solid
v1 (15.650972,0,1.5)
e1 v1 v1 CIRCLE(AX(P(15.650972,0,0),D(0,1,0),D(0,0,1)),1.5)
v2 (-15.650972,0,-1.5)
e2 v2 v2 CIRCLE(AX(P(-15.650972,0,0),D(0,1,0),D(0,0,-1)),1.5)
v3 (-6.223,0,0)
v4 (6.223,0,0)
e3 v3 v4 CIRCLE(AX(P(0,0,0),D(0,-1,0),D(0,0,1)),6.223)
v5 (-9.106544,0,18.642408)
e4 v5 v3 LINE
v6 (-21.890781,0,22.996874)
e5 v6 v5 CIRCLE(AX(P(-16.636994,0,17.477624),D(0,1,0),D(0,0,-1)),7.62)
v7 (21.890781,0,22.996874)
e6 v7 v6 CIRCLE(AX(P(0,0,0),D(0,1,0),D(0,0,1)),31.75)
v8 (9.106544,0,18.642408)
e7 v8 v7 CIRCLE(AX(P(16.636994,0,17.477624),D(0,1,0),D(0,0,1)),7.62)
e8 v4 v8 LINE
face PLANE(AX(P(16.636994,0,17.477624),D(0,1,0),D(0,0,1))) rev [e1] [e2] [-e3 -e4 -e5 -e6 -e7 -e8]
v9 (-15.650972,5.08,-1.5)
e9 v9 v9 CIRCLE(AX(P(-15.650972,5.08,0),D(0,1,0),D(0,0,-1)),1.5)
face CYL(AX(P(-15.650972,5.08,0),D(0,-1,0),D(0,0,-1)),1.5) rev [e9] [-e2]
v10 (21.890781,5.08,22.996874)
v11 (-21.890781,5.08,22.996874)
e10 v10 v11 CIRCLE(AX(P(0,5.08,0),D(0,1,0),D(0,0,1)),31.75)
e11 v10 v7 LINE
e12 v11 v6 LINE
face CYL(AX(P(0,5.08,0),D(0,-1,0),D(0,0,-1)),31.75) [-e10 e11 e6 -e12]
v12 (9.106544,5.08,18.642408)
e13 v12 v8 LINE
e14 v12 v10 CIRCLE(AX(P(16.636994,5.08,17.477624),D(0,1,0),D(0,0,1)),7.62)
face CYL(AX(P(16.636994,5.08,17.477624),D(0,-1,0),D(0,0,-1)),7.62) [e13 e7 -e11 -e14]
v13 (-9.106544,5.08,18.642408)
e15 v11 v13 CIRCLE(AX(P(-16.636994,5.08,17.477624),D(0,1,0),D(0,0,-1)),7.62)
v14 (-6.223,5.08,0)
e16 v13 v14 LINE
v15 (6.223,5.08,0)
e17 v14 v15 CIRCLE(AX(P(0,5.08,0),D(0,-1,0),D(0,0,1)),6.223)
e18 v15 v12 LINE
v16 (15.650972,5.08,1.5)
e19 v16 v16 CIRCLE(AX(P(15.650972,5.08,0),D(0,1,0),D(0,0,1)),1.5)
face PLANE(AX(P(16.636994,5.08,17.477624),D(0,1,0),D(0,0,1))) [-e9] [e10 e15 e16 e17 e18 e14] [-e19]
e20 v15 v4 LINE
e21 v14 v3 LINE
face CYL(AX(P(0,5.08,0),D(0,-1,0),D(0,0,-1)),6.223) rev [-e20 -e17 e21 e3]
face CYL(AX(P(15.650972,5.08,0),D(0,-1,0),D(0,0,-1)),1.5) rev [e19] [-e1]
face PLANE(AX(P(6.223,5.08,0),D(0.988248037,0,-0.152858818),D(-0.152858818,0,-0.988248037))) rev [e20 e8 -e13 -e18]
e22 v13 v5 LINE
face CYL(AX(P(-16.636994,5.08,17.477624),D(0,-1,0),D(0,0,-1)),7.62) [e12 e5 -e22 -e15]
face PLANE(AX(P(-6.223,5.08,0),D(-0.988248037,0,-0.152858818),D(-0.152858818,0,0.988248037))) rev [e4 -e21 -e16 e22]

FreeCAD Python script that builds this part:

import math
import FreeCAD as App
import Part
import Sketcher
Q = App.Units.Quantity

doc = App.newDocument("Part")
params = doc.addObject("Spreadsheet::Sheet", "Params")
for row, (alias, value) in enumerate([
    ("sketch1_radius", "0.3 in"),
    ("sketch1_radius2", "1.25 in"),
    ("sketch1_radius3", "0.245 in"),
    ("pad1_length", "0.2 in"),
], start=1):
    params.set(f"A{row}", alias)
    params.set(f"B{row}", "=" + value)
    params.setAlias(f"B{row}", alias)

body = doc.addObject("PartDesign::Body", "Body")

# Sketch on XZ plane
sketch1 = body.newObject("Sketcher::SketchObject", "Sketch")
sketch1.AttachmentSupport = (doc.getObject("XZ_Plane"), [""])
sketch1.MapMode = "FlatFace"
sketch1.addGeometry(Part.LineSegment(App.Vector(6.2, 0, 0), App.Vector(9.1, 18.6, 0)), False)
sketch1.addGeometry(Part.ArcOfCircle(Part.Circle(App.Vector(16.6, 17.5, 0), App.Vector(0, 0, 1), 7.6), math.radians(46), math.radians(171)), False)
sketch1.addGeometry(Part.ArcOfCircle(Part.Circle(App.Vector(0, 0, 0), App.Vector(0, 0, 1), 31.8), math.radians(134), math.radians(406)), False)
sketch1.addGeometry(Part.ArcOfCircle(Part.Circle(App.Vector(-16.6, 17.5, 0), App.Vector(0, 0, 1), 7.6), math.radians(9), math.radians(134)), False)
sketch1.addGeometry(Part.LineSegment(App.Vector(-9.1, 18.6, 0), App.Vector(-6.2, 0, 0)), False)
sketch1.addGeometry(Part.ArcOfCircle(Part.Circle(App.Vector(0, 0, 0), App.Vector(0, 0, 1), 6.2), math.radians(180), math.radians(360)), False)
sketch1.addGeometry(Part.Circle(App.Vector(-15.7, 0, 0), App.Vector(0, 0, 1), 1.5), False)
sketch1.addGeometry(Part.Circle(App.Vector(15.7, 0, 0), App.Vector(0, 0, 1), 1.5), False)
sketch1.addConstraint(Sketcher.Constraint("Tangent", 0, 2, 1, 2))
sketch1.addConstraint(Sketcher.Constraint("Tangent", 1, 1, 2, 2))
sketch1.addConstraint(Sketcher.Constraint("Tangent", 2, 1, 3, 2))
sketch1.addConstraint(Sketcher.Constraint("Tangent", 3, 1, 4, 1))
sketch1.addConstraint(Sketcher.Constraint("Coincident", 4, 2, 5, 1))
sketch1.addConstraint(Sketcher.Constraint("Coincident", 5, 2, 0, 1))
sketch1.addConstraint(Sketcher.Constraint("Coincident", 2, 3, -1, 1))
sketch1.addConstraint(Sketcher.Constraint("Coincident", 5, 3, -1, 1))
sketch1.addConstraint(Sketcher.Constraint("Equal", 1, 3))
sketch1.addConstraint(Sketcher.Constraint("Equal", 6, 7))
sketch1.addConstraint(Sketcher.Constraint("Symmetric", 6, 3, 7, 3, -1, 1))
sketch1.addConstraint(Sketcher.Constraint("Symmetric", 0, 2, 3, 1, -2))
sketch1.addConstraint(Sketcher.Constraint("PointOnObject", 6, 3, -1))
sketch1.addConstraint(Sketcher.Constraint("PointOnObject", 4, 2, -1))
sketch1.addConstraint(Sketcher.Constraint("Radius", 1, Q("0.3 in")))
sketch1.addConstraint(Sketcher.Constraint("Radius", 2, Q("1.25 in")))
sketch1.addConstraint(Sketcher.Constraint("Radius", 5, Q("0.245 in")))
sketch1.addConstraint(Sketcher.Constraint("Diameter", 6, Q("3 mm")))
sketch1.addConstraint(Sketcher.Constraint("Distance", 0, Q("18.864098 mm")))
sketch1.addConstraint(Sketcher.Constraint("DistanceX", 3, 3, 6, 3, Q("0.986022 mm")))
sketch1.setExpression("Constraints[14]", "Params.sketch1_radius")
sketch1.setExpression("Constraints[15]", "Params.sketch1_radius2")
sketch1.setExpression("Constraints[16]", "Params.sketch1_radius3")
pad1 = body.newObject("PartDesign::Pad", "Pad")
pad1.Profile = sketch1
pad1.setExpression("Length", "Params.pad1_length")
pad1.Reversed = True

doc.recompute()
